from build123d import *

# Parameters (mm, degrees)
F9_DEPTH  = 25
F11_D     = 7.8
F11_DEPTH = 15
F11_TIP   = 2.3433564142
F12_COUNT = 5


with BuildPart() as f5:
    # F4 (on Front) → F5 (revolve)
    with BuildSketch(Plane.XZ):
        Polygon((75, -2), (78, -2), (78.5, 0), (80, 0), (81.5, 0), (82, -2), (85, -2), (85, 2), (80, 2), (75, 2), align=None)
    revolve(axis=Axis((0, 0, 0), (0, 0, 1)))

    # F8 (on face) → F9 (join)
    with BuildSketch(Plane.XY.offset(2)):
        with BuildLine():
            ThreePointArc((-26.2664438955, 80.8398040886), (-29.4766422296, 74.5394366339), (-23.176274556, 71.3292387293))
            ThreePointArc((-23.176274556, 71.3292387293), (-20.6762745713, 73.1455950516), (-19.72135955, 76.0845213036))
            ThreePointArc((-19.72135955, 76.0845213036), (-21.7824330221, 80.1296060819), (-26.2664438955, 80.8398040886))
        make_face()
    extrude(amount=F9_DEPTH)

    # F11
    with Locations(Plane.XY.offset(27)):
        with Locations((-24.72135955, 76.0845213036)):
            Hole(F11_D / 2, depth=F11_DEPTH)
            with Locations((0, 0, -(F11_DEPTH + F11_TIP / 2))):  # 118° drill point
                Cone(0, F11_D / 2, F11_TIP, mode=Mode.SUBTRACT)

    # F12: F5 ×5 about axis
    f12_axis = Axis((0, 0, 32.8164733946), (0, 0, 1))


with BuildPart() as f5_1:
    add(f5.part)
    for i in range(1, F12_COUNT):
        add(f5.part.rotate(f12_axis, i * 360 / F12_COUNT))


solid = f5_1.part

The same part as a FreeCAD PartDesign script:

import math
import FreeCAD as App
import Part
import Sketcher

V = App.Vector

doc = App.newDocument("Part")
body = doc.addObject("PartDesign::Body", "Body")

sketch1 = body.newObject("Sketcher::SketchObject", "Sketch")
sketch1.AttachmentSupport = (doc.getObject("XZ_Plane"), [""])
sketch1.MapMode = "FlatFace"
sketch1.addGeometry(Part.LineSegment(V(75, -2, 0), V(78, -2, 0)), False)
sketch1.addGeometry(Part.LineSegment(V(78, -2, 0), V(78.5, 0, 0)), False)
sketch1.addGeometry(Part.LineSegment(V(78.5, 0, 0), V(81.5, 0, 0)), False)
sketch1.addGeometry(Part.LineSegment(V(81.5, 0, 0), V(82, -2, 0)), False)
sketch1.addGeometry(Part.LineSegment(V(82, -2, 0), V(85, -2, 0)), False)
sketch1.addGeometry(Part.LineSegment(V(85, -2, 0), V(85, 2, 0)), False)
sketch1.addGeometry(Part.LineSegment(V(85, 2, 0), V(75, 2, 0)), False)
sketch1.addGeometry(Part.LineSegment(V(75, 2, 0), V(75, -2, 0)), False)
sketch1.addConstraint(Sketcher.Constraint("Coincident", 0, 2, 1, 1))
sketch1.addConstraint(Sketcher.Constraint("Coincident", 1, 2, 2, 1))
sketch1.addConstraint(Sketcher.Constraint("Coincident", 2, 2, 3, 1))
sketch1.addConstraint(Sketcher.Constraint("Coincident", 3, 2, 4, 1))
sketch1.addConstraint(Sketcher.Constraint("Coincident", 4, 2, 5, 1))
sketch1.addConstraint(Sketcher.Constraint("Coincident", 5, 2, 6, 1))
sketch1.addConstraint(Sketcher.Constraint("Coincident", 6, 2, 7, 1))
sketch1.addConstraint(Sketcher.Constraint("Coincident", 7, 2, 0, 1))
sketch1.addConstraint(Sketcher.Constraint("Horizontal", 0))
sketch1.addConstraint(Sketcher.Constraint("Horizontal", 2))
sketch1.addConstraint(Sketcher.Constraint("Horizontal", 4))
sketch1.addConstraint(Sketcher.Constraint("Vertical", 5))
sketch1.addConstraint(Sketcher.Constraint("Horizontal", 6))
sketch1.addConstraint(Sketcher.Constraint("Vertical", 7))
sketch1.addConstraint(Sketcher.Constraint("PointOnObject", 1, 2, -1))
sketch1.addConstraint(Sketcher.Constraint("Horizontal", 0, 2, 3, 2))
sketch1.addConstraint(Sketcher.Constraint("Equal", 0, 2))
sketch1.addConstraint(Sketcher.Constraint("Equal", 2, 4))
sketch1.addConstraint(Sketcher.Constraint("Equal", 1, 3))
sketch1.addConstraint(Sketcher.Constraint("DistanceX", 0, 1, 0, 2, 3.0))
sketch1.addConstraint(Sketcher.Constraint("DistanceX", 6, 2, 6, 1, 10.0))
sketch1.addConstraint(Sketcher.Constraint("DistanceY", 5, 1, 5, 2, 4.0))
sketch1.addConstraint(Sketcher.Constraint("DistanceX", -1, 1, 0, 2, 78.0))
sketch1.addConstraint(Sketcher.Constraint("DistanceY", 0, 2, -1, 1, 2.0))
revolution = body.newObject("PartDesign::Revolution", "Revolution")
revolution.Profile = sketch1
revolution.ReferenceAxis = (sketch1, ["V_Axis"])
revolution.Angle = 360

sketch2 = body.newObject("Sketcher::SketchObject", "Sketch001")
sketch2.AttachmentSupport = (doc.getObject("XY_Plane"), [""])
sketch2.MapMode = "FlatFace"
sketch2.AttachmentOffset = App.Placement(V(0, 0, 2), App.Rotation())
sketch2.addGeometry(Part.ArcOfCircle(Part.Circle(V(-24.72136, 76.084521, 0), V(0, 0, 1), 5), math.radians(107.999992), math.radians(288)), False)
sketch2.addGeometry(Part.ArcOfCircle(Part.Circle(V(-24.72136, 76.084521, 0), V(0, 0, 1), 5), math.radians(-72), math.radians(0)), False)
sketch2.addGeometry(Part.ArcOfCircle(Part.Circle(V(-24.72136, 76.084521, 0), V(0, 0, 1), 5), math.radians(0), math.radians(107.999992)), False)
sketch2.addConstraint(Sketcher.Constraint("Tangent", 0, 2, 1, 1))
sketch2.addConstraint(Sketcher.Constraint("Tangent", 1, 2, 2, 1))
sketch2.addConstraint(Sketcher.Constraint("Tangent", 2, 2, 0, 1))
sketch2.addConstraint(Sketcher.Constraint("Horizontal", 2, 3, 1, 2))
sketch2.addConstraint(Sketcher.Constraint("Radius", 0, 5.0))
sketch2.addConstraint(Sketcher.Constraint("DistanceX", 0, 3, -1, 1, 24.72136))
sketch2.addConstraint(Sketcher.Constraint("DistanceY", -1, 1, 0, 3, 76.084521))
sketch2.addConstraint(Sketcher.Constraint("DistanceY", -1, 1, 0, 2, 71.329239))
sketch2.addConstraint(Sketcher.Constraint("DistanceX", 2, 2, 0, 2, 3.090169))
pad1 = body.newObject("PartDesign::Pad", "Pad")
pad1.Profile = sketch2
pad1.Length = 25

sketch3 = body.newObject("Sketcher::SketchObject", "Sketch002")
sketch3.AttachmentSupport = (doc.getObject("XY_Plane"), [""])
sketch3.MapMode = "FlatFace"
sketch3.AttachmentOffset = App.Placement(V(0, 0, 27), App.Rotation())
sketch3.addGeometry(Part.Circle(V(-24.72136, 76.084521, 0), V(0, 0, 1), 3.9), False)
sketch3.addConstraint(Sketcher.Constraint("Diameter", 0, 7.8))
sketch3.addConstraint(Sketcher.Constraint("DistanceX", 0, 3, -1, 1, 24.72136))
sketch3.addConstraint(Sketcher.Constraint("DistanceY", -1, 1, 0, 3, 76.084521))
doc.recompute()
hole = body.newObject("PartDesign::Hole", "Hole")
hole.Profile = sketch3
hole.ThreadType = "None"
hole.Diameter = 7.8
hole.DepthType = "Dimension"
hole.Depth = 15
hole.DrillPoint = "Angled"
hole.DrillPointAngle = 118
body2 = doc.addObject("PartDesign::Body", "Body001")
doc.recompute()

body2.BaseFeature = body
doc.recompute()

body3 = doc.addObject("PartDesign::Body", "Body002")
body3.BaseFeature = body
body3.Placement = App.Placement(V(0, 0, 0), App.Rotation(V(0, 0, 1), 72))
boolean = body2.newObject("PartDesign::Boolean", "Boolean")
boolean.Type = "Fuse"
boolean.addObjects([body3])
doc.recompute()

body4 = doc.addObject("PartDesign::Body", "Body003")
body4.BaseFeature = body
body4.Placement = App.Placement(V(0, 0, 0), App.Rotation(V(0, 0, 1), 144))
boolean2 = body2.newObject("PartDesign::Boolean", "Boolean001")
boolean2.Type = "Fuse"
boolean2.addObjects([body4])
doc.recompute()

body5 = doc.addObject("PartDesign::Body", "Body004")
body5.BaseFeature = body
body5.Placement = App.Placement(V(0, 0, 0), App.Rotation(V(0, 0, 1), 216))
boolean3 = body2.newObject("PartDesign::Boolean", "Boolean002")
boolean3.Type = "Fuse"
boolean3.addObjects([body5])
doc.recompute()

body.Placement = App.Placement(V(0, 0, 0), App.Rotation(V(0, 0, 1), 288))
boolean4 = body2.newObject("PartDesign::Boolean", "Boolean003")
boolean4.Type = "Fuse"
boolean4.addObjects([body])

doc.recompute()
